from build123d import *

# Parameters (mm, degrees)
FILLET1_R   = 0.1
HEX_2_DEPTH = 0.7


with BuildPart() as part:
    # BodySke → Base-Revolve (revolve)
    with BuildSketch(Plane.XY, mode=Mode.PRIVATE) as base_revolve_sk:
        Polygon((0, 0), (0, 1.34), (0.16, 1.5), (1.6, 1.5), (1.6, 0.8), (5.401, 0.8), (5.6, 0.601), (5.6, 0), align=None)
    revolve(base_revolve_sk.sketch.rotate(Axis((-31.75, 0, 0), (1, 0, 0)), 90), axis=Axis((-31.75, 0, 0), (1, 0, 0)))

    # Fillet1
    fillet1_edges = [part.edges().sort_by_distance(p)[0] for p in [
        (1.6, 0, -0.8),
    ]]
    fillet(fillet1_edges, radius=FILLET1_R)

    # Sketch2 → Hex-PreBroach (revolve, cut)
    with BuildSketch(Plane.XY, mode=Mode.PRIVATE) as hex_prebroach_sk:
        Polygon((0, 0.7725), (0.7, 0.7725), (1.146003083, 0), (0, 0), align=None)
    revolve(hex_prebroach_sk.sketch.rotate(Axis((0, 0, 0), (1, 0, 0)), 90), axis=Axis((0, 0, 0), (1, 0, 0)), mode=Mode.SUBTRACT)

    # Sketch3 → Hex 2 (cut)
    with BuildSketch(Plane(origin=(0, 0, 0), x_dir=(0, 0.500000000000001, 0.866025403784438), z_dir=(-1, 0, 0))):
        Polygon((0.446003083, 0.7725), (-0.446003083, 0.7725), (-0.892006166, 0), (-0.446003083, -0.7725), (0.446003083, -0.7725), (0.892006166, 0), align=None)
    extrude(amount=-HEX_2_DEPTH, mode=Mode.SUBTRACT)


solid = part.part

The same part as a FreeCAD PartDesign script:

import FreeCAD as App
import Part
import Sketcher

V = App.Vector
Q = App.Units.Quantity


def edges_at(feature, points):
    """Names of the edges that pass closest to the given points."""
    edges = feature.Shape.Edges
    near = lambda p: min(range(len(edges)), key=lambda i: edges[i].distToShape(Part.Vertex(*p))[0])
    return sorted({f"Edge{near(p) + 1}" for p in points})


def add_polygon(sketch, points):
    """Adds a closed chain of lines whose ends are joined by coincident constraints."""
    first, n = sketch.GeometryCount, len(points)
    for a, b in zip(points, points[1:] + points[:1]):
        sketch.addGeometry(Part.LineSegment(App.Vector(*a, 0), App.Vector(*b, 0)), False)
    for i in range(n):
        sketch.addConstraint(Sketcher.Constraint("Coincident", first + i, 2, first + (i + 1) % n, 1))

doc = App.newDocument("Part")
params = doc.addObject("Spreadsheet::Sheet", "Params")
for row, (alias, value) in enumerate([
    ("sketch1_width", "5.6 mm"),
    ("sketch1_height", "0.7 mm"),
    ("sketch1_width2", "1.44 mm"),
    ("sketch1_height2", "1.34 mm"),
    ("revolution_angle", "360 deg"),
    ("fillet_radius", "0.1 mm"),
    ("sketch2_width", "0.7 mm"),
    ("groove_angle", "360 deg"),
    ("pocket1_length", "0.7 mm"),
], start=1):
    params.set(f"A{row}", alias)
    params.set(f"B{row}", "=" + value)
    params.setAlias(f"B{row}", alias)

body = doc.addObject("PartDesign::Body", "Body")

# Sketch on XY plane
sketch1 = doc.addObject("Sketcher::SketchObject", "Sketch")
body.addObject(sketch1)
sketch1.AttachmentSupport = (doc.XY_Plane, [""])
sketch1.MapMode = "FlatFace"
add_polygon(sketch1, [(0, 1.34), (0, 0), (5.6, 0), (5.6, 0.6), (5.4, 0.8), (1.6, 0.8), (1.6, 1.5), (0.16, 1.5)])  # lines 0-7
sketch1.addConstraint([
    Sketcher.Constraint("Vertical", 0),
    Sketcher.Constraint("Horizontal", 1),
    Sketcher.Constraint("Vertical", 2),
    Sketcher.Constraint("Horizontal", 4),
    Sketcher.Constraint("Vertical", 5),
    Sketcher.Constraint("Horizontal", 6),
    Sketcher.Constraint("Coincident", 0, 2, -1, 1),
    Sketcher.Constraint("Perpendicular", 3, 7),
    Sketcher.Constraint("Angle", 3, Q("135 deg")),
    Sketcher.Constraint("DistanceX", 1, 1, 1, 2, Q("5.6 mm")),
    Sketcher.Constraint("DistanceY", 5, 1, 5, 2, Q("0.7 mm")),
    Sketcher.Constraint("DistanceX", 4, 2, 2, 2, Q("4 mm")),
    Sketcher.Constraint("DistanceX", 6, 2, 6, 1, Q("1.44 mm")),
    Sketcher.Constraint("DistanceY", 0, 2, 0, 1, Q("1.34 mm")),
    Sketcher.Constraint("DistanceX", 4, 2, 4, 1, Q("3.801 mm")),
])
sketch1.setExpression("Constraints[17]", "Params.sketch1_width")
sketch1.setExpression("Constraints[18]", "Params.sketch1_height")
sketch1.setExpression("Constraints[20]", "Params.sketch1_width2")
sketch1.setExpression("Constraints[21]", "Params.sketch1_height2")
revolution = doc.addObject("PartDesign::Revolution", "Revolution")
body.addObject(revolution)
revolution.Profile = sketch1
revolution.ReferenceAxis = (sketch1, ["H_Axis"])
revolution.setExpression("Angle", "Params.revolution_angle")
doc.recompute()

fillet = doc.addObject("PartDesign::Fillet", "Fillet")
body.addObject(fillet)
fillet.Base = (revolution, edges_at(revolution, [(1.6, 0, -0.8)]))
fillet.setExpression("Radius", "Params.fillet_radius")

# Sketch on XY plane
sketch2 = doc.addObject("Sketcher::SketchObject", "Sketch001")
body.addObject(sketch2)
sketch2.AttachmentSupport = (doc.XY_Plane, [""])
sketch2.MapMode = "FlatFace"
add_polygon(sketch2, [(0.7, 0.8), (0, 0.8), (0, 0), (1.1, 0)])  # lines 0-3
sketch2.addConstraint([
    Sketcher.Constraint("Horizontal", 0),
    Sketcher.Constraint("Vertical", 1),
    Sketcher.Constraint("Horizontal", 2),
    Sketcher.Constraint("Coincident", 1, 2, -1, 1),
    Sketcher.Constraint("Angle", 3, Q("120 deg")),
    Sketcher.Constraint("DistanceX", 0, 2, 0, 1, Q("0.7 mm")),
    Sketcher.Constraint("DistanceY", 1, 2, 1, 1, Q("0.7725 mm")),
])
sketch2.setExpression("Constraints[9]", "Params.sketch2_width")
groove = doc.addObject("PartDesign::Groove", "Groove")
body.addObject(groove)
groove.Profile = sketch2
groove.ReferenceAxis = (sketch2, ["H_Axis"])
groove.setExpression("Angle", "Params.groove_angle")

# Sketch on YZ plane
sketch3 = doc.addObject("Sketcher::SketchObject", "Sketch002")
body.addObject(sketch3)
sketch3.AttachmentSupport = (doc.YZ_Plane, [""])
sketch3.MapMode = "FlatFace"
add_polygon(sketch3, [(0.9, 0), (0.4, -0.8), (-0.4, -0.8), (-0.9, 0), (-0.4, 0.8), (0.4, 0.8)])  # lines 0-5
sketch3.addConstraint([
    Sketcher.Constraint("Horizontal", 1),
    Sketcher.Constraint("Horizontal", 4),
    Sketcher.Constraint("Symmetric", 0, 2, 3, 2, -1, 1),
    Sketcher.Constraint("Symmetric", 2, 2, 5, 2, -1, 1),
    Sketcher.Constraint("PointOnObject", 2, 2, -1),
    Sketcher.Constraint("Parallel", 2, 5),
    Sketcher.Constraint("Vertical", 1, 2, 3, 2),
    Sketcher.Constraint("Angle", 0, Q("-120 deg")),
    Sketcher.Constraint("DistanceY", 1, 2, 3, 2, Q("1.545 mm")),
    Sketcher.Constraint("DistanceX", 1, 2, 1, 1, Q("0.892006 mm")),
])
pocket1 = doc.addObject("PartDesign::Pocket", "Pocket")
body.addObject(pocket1)
pocket1.Profile = sketch3
pocket1.setExpression("Length", "Params.pocket1_length")
pocket1.Reversed = True

doc.recompute()
